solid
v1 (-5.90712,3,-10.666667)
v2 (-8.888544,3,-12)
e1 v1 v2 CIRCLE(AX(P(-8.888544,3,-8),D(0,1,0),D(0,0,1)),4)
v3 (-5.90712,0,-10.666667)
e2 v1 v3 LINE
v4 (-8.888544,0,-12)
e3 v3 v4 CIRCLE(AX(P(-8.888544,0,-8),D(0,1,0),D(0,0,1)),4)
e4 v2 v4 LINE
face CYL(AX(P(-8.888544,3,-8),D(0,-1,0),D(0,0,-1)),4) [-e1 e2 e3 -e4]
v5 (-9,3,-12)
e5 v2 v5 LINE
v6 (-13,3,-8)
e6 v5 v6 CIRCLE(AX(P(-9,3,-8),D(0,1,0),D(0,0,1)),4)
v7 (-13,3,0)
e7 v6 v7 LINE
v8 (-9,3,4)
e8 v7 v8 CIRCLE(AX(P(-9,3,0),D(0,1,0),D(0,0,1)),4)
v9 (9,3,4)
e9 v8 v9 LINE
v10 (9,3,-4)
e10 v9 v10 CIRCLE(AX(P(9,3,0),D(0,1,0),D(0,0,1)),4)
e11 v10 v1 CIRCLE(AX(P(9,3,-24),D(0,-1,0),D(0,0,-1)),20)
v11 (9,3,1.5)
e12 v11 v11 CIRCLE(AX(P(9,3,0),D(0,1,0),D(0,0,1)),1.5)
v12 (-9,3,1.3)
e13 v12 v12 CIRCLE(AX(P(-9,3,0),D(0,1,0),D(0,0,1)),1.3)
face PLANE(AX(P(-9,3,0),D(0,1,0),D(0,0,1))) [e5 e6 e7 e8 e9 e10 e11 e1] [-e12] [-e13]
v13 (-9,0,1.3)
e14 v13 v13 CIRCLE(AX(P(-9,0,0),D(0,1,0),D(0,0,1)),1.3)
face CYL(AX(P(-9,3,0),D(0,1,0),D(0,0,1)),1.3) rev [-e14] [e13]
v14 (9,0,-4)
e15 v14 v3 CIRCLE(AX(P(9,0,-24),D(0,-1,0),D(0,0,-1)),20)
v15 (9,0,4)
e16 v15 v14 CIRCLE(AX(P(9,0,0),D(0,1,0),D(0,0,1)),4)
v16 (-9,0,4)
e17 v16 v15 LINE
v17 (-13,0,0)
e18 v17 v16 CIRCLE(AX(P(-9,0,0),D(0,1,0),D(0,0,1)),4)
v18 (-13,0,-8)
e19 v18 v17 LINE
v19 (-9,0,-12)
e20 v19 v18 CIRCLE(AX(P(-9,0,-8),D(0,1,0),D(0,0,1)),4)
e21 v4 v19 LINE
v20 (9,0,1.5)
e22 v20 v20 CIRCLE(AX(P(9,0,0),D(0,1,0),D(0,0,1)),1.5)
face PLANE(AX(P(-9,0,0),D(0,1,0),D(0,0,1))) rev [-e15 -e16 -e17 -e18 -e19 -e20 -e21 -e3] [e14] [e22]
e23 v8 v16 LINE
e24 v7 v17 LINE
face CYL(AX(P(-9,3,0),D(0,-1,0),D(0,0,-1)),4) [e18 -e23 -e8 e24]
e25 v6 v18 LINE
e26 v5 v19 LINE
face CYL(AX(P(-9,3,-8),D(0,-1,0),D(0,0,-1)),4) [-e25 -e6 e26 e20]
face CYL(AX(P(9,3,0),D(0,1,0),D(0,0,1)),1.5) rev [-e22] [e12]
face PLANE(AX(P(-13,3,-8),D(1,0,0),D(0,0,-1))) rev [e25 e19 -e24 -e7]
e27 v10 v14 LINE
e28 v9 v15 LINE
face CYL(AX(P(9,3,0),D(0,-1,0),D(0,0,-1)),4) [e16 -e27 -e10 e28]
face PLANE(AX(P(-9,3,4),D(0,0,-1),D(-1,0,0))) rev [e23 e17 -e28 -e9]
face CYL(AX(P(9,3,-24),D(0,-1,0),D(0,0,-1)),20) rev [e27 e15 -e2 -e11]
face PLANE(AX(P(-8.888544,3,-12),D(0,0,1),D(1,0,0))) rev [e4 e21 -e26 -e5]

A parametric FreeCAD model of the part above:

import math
import FreeCAD as App
import Part
import Sketcher
Q = App.Units.Quantity

doc = App.newDocument("Part")
body = doc.addObject("PartDesign::Body", "Body")

# Sketch on XZ plane
sketch1 = doc.addObject("Sketcher::SketchObject", "Sketch")
body.addObject(sketch1)
sketch1.AttachmentSupport = (doc.XZ_Plane, [""])
sketch1.MapMode = "FlatFace"
sketch1.addGeometry([
    Part.LineSegment(App.Vector(-9, 4, 0), App.Vector(9, 4, 0)),  # 0
    Part.ArcOfCircle(Part.Circle(App.Vector(9, 0, 0), App.Vector(0, 0, 1), 4), math.radians(-90), math.radians(90)),  # 1
    Part.ArcOfCircle(Part.Circle(App.Vector(9, -24, 0), App.Vector(0, 0, 1), 20), math.radians(90), math.radians(138)),  # 2
    Part.ArcOfCircle(Part.Circle(App.Vector(-8.89, -8, 0), App.Vector(0, 0, 1), 4), math.radians(-90), math.radians(-42)),  # 3
    Part.LineSegment(App.Vector(-8.89, -12, 0), App.Vector(-9, -12, 0)),  # 4
    Part.ArcOfCircle(Part.Circle(App.Vector(-9, -8, 0), App.Vector(0, 0, 1), 4), math.radians(180), math.radians(270)),  # 5
    Part.LineSegment(App.Vector(-13, -8, 0), App.Vector(-13, 0, 0)),  # 6
    Part.ArcOfCircle(Part.Circle(App.Vector(-9, 0, 0), App.Vector(0, 0, 1), 4), math.radians(90), math.radians(180)),  # 7
], False)
sketch1.addConstraint([
    Sketcher.Constraint("Tangent", 0, 2, 1, 2),
    Sketcher.Constraint("Tangent", 1, 1, 2, 1),
    Sketcher.Constraint("Tangent", 2, 2, 3, 2),
    Sketcher.Constraint("Tangent", 3, 1, 4, 1),
    Sketcher.Constraint("Tangent", 4, 2, 5, 2),
    Sketcher.Constraint("Tangent", 5, 1, 6, 1),
    Sketcher.Constraint("Tangent", 6, 2, 7, 2),
    Sketcher.Constraint("Tangent", 7, 1, 0, 1),
    Sketcher.Constraint("Horizontal", 0),
    Sketcher.Constraint("Horizontal", 4),
    Sketcher.Constraint("Vertical", 6),
    Sketcher.Constraint("Equal", 1, 3),
    Sketcher.Constraint("Equal", 3, 5),
    Sketcher.Constraint("Equal", 5, 7),
    Sketcher.Constraint("Symmetric", 1, 3, 7, 3, -1, 1),
    Sketcher.Constraint("Vertical", 1, 3, 2, 3),
    Sketcher.Constraint("Radius", 1, Q("4 mm")),
    Sketcher.Constraint("Radius", 2, Q("20 mm")),
    Sketcher.Constraint("DistanceX", 0, 1, 0, 2, Q("18 mm")),
    Sketcher.Constraint("DistanceY", 6, 1, 6, 2, Q("8 mm")),
])
pad1 = doc.addObject("PartDesign::Pad", "Pad")
body.addObject(pad1)
pad1.Profile = sketch1
pad1.Length = 3
pad1.Reversed = True

# Sketch on XZ plane
sketch2 = doc.addObject("Sketcher::SketchObject", "Sketch001")
body.addObject(sketch2)
sketch2.AttachmentSupport = (doc.XZ_Plane, [""])
sketch2.MapMode = "FlatFace"
sketch2.AttachmentOffset = App.Placement(App.Vector(0, 0, -3), App.Rotation())
sketch2.addGeometry(Part.Circle(App.Vector(9, 0, 0), App.Vector(0, 0, 1), 1.5), False)
sketch2.addConstraint([
    Sketcher.Constraint("PointOnObject", 0, 3, -1),
    Sketcher.Constraint("Diameter", 0, Q("3 mm")),
    Sketcher.Constraint("DistanceX", -1, 1, 0, 3, Q("9 mm")),
])
doc.recompute()
hole = doc.addObject("PartDesign::Hole", "Hole")
body.addObject(hole)
hole.Profile = sketch2
hole.ThreadType = "None"
hole.Diameter = 3
hole.DepthType = "ThroughAll"
hole.Reversed = True

# Sketch on XZ plane
sketch3 = doc.addObject("Sketcher::SketchObject", "Sketch002")
body.addObject(sketch3)
sketch3.AttachmentSupport = (doc.XZ_Plane, [""])
sketch3.MapMode = "FlatFace"
sketch3.AttachmentOffset = App.Placement(App.Vector(0, 0, -3), App.Rotation())
sketch3.addGeometry(Part.Circle(App.Vector(-9, 0, 0), App.Vector(0, 0, 1), 1.3), False)
sketch3.addConstraint([
    Sketcher.Constraint("PointOnObject", 0, 3, -1),
    Sketcher.Constraint("Diameter", 0, Q("2.6 mm")),
    Sketcher.Constraint("DistanceX", 0, 3, -1, 1, Q("9 mm")),
])
doc.recompute()
hole2 = doc.addObject("PartDesign::Hole", "Hole001")
body.addObject(hole2)
hole2.Profile = sketch3
hole2.ThreadType = "None"
hole2.Diameter = 2.6
hole2.DepthType = "ThroughAll"
hole2.Reversed = True

doc.recompute()
